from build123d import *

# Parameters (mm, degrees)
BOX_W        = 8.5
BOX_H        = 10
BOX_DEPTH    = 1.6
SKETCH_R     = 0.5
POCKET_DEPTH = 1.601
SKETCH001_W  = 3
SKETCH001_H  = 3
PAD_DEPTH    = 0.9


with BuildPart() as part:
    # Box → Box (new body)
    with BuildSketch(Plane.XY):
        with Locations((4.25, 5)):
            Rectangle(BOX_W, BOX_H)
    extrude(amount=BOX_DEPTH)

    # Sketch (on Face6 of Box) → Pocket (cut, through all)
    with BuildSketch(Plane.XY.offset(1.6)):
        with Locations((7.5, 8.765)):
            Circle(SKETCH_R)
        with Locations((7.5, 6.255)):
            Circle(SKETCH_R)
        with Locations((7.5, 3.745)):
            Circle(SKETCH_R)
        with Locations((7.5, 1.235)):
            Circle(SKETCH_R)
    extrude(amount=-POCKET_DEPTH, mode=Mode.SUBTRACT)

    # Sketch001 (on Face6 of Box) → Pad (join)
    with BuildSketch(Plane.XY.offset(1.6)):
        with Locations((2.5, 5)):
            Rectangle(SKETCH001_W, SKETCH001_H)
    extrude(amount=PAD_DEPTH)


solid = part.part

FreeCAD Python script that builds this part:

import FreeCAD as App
import Part
import Sketcher
from FreeCAD import Vector
Q = App.Units.Quantity


def add_polygon(sketch, points):
    """Adds a closed chain of lines whose ends are joined by coincident constraints."""
    first, n = sketch.GeometryCount, len(points)
    for a, b in zip(points, points[1:] + points[:1]):
        sketch.addGeometry(Part.LineSegment(App.Vector(*a, 0), App.Vector(*b, 0)), False)
    for i in range(n):
        sketch.addConstraint(Sketcher.Constraint("Coincident", first + i, 2, first + (i + 1) % n, 1))

doc = App.newDocument("Part")
body = doc.addObject("PartDesign::Body", "Body")

# Sketch on XY plane
sketch1 = body.newObject("Sketcher::SketchObject", "Sketch")
sketch1.AttachmentSupport = (doc.getObject("XY_Plane"), [""])
sketch1.MapMode = "FlatFace"
add_polygon(sketch1, [(0, 10), (0, 0), (8.5, 0), (8.5, 10)])  # lines 0-3
sketch1.addConstraint(Sketcher.Constraint("Vertical", 0))
sketch1.addConstraint(Sketcher.Constraint("Horizontal", 1))
sketch1.addConstraint(Sketcher.Constraint("Vertical", 2))
sketch1.addConstraint(Sketcher.Constraint("Horizontal", 3))
sketch1.addConstraint(Sketcher.Constraint("Coincident", 0, 2, -1, 1))
sketch1.addConstraint(Sketcher.Constraint("DistanceY", 0, 2, 0, 1, Q("10 mm")))
sketch1.addConstraint(Sketcher.Constraint("DistanceX", 1, 1, 1, 2, Q("8.5 mm")))
pad1 = body.newObject("PartDesign::Pad", "Pad")
pad1.Profile = sketch1
pad1.Length = 1.6

# Sketch on XY plane
sketch2 = body.newObject("Sketcher::SketchObject", "Sketch001")
sketch2.AttachmentSupport = (doc.getObject("XY_Plane"), [""])
sketch2.MapMode = "FlatFace"
sketch2.AttachmentOffset = App.Placement(Vector(0, 0, 1.6), App.Rotation())
sketch2.addGeometry(Part.Circle(Vector(7.5, 8.765, 0), Vector(0, 0, 1), 0.5), False)
sketch2.addGeometry(Part.Circle(Vector(7.5, 6.255, 0), Vector(0, 0, 1), 0.5), False)
sketch2.addGeometry(Part.Circle(Vector(7.5, 3.745, 0), Vector(0, 0, 1), 0.5), False)
sketch2.addGeometry(Part.Circle(Vector(7.5, 1.235, 0), Vector(0, 0, 1), 0.5), False)
sketch2.addConstraint(Sketcher.Constraint("Equal", 0, 1))
sketch2.addConstraint(Sketcher.Constraint("Equal", 1, 2))
sketch2.addConstraint(Sketcher.Constraint("Equal", 2, 3))
sketch2.addConstraint(Sketcher.Constraint("Vertical", 0, 3, 1, 3))
sketch2.addConstraint(Sketcher.Constraint("Vertical", 1, 3, 2, 3))
sketch2.addConstraint(Sketcher.Constraint("Vertical", 2, 3, 3, 3))
sketch2.addConstraint(Sketcher.Constraint("Diameter", 0, Q("1 mm")))
sketch2.addConstraint(Sketcher.Constraint("DistanceX", -1, 1, 0, 3, Q("7.5 mm")))
sketch2.addConstraint(Sketcher.Constraint("DistanceY", 1, 3, 0, 3, Q("2.51 mm")))
sketch2.addConstraint(Sketcher.Constraint("DistanceY", 2, 3, 1, 3, Q("2.51 mm")))
sketch2.addConstraint(Sketcher.Constraint("DistanceY", 3, 3, 2, 3, Q("2.51 mm")))
sketch2.addConstraint(Sketcher.Constraint("DistanceY", -1, 1, 0, 3, Q("8.765 mm")))
pocket1 = body.newObject("PartDesign::Pocket", "Pocket")
pocket1.Profile = sketch2
pocket1.Type = "ThroughAll"

# Sketch on XY plane
sketch3 = body.newObject("Sketcher::SketchObject", "Sketch002")
sketch3.AttachmentSupport = (doc.getObject("XY_Plane"), [""])
sketch3.MapMode = "FlatFace"
sketch3.AttachmentOffset = App.Placement(Vector(0, 0, 1.6), App.Rotation())
add_polygon(sketch3, [(1, 6.5), (1, 3.5), (4, 3.5), (4, 6.5)])  # lines 0-3
sketch3.addConstraint(Sketcher.Constraint("Vertical", 0))
sketch3.addConstraint(Sketcher.Constraint("Horizontal", 1))
sketch3.addConstraint(Sketcher.Constraint("Vertical", 2))
sketch3.addConstraint(Sketcher.Constraint("Horizontal", 3))
sketch3.addConstraint(Sketcher.Constraint("Equal", 3, 0))
sketch3.addConstraint(Sketcher.Constraint("DistanceX", 1, 1, 1, 2, Q("3 mm")))
sketch3.addConstraint(Sketcher.Constraint("DistanceX", -1, 1, 0, 2, Q("1 mm")))
sketch3.addConstraint(Sketcher.Constraint("DistanceY", -1, 1, 0, 2, Q("3.5 mm")))
pad2 = body.newObject("PartDesign::Pad", "Pad001")
pad2.Profile = sketch3
pad2.Length = 0.9

doc.recompute()
